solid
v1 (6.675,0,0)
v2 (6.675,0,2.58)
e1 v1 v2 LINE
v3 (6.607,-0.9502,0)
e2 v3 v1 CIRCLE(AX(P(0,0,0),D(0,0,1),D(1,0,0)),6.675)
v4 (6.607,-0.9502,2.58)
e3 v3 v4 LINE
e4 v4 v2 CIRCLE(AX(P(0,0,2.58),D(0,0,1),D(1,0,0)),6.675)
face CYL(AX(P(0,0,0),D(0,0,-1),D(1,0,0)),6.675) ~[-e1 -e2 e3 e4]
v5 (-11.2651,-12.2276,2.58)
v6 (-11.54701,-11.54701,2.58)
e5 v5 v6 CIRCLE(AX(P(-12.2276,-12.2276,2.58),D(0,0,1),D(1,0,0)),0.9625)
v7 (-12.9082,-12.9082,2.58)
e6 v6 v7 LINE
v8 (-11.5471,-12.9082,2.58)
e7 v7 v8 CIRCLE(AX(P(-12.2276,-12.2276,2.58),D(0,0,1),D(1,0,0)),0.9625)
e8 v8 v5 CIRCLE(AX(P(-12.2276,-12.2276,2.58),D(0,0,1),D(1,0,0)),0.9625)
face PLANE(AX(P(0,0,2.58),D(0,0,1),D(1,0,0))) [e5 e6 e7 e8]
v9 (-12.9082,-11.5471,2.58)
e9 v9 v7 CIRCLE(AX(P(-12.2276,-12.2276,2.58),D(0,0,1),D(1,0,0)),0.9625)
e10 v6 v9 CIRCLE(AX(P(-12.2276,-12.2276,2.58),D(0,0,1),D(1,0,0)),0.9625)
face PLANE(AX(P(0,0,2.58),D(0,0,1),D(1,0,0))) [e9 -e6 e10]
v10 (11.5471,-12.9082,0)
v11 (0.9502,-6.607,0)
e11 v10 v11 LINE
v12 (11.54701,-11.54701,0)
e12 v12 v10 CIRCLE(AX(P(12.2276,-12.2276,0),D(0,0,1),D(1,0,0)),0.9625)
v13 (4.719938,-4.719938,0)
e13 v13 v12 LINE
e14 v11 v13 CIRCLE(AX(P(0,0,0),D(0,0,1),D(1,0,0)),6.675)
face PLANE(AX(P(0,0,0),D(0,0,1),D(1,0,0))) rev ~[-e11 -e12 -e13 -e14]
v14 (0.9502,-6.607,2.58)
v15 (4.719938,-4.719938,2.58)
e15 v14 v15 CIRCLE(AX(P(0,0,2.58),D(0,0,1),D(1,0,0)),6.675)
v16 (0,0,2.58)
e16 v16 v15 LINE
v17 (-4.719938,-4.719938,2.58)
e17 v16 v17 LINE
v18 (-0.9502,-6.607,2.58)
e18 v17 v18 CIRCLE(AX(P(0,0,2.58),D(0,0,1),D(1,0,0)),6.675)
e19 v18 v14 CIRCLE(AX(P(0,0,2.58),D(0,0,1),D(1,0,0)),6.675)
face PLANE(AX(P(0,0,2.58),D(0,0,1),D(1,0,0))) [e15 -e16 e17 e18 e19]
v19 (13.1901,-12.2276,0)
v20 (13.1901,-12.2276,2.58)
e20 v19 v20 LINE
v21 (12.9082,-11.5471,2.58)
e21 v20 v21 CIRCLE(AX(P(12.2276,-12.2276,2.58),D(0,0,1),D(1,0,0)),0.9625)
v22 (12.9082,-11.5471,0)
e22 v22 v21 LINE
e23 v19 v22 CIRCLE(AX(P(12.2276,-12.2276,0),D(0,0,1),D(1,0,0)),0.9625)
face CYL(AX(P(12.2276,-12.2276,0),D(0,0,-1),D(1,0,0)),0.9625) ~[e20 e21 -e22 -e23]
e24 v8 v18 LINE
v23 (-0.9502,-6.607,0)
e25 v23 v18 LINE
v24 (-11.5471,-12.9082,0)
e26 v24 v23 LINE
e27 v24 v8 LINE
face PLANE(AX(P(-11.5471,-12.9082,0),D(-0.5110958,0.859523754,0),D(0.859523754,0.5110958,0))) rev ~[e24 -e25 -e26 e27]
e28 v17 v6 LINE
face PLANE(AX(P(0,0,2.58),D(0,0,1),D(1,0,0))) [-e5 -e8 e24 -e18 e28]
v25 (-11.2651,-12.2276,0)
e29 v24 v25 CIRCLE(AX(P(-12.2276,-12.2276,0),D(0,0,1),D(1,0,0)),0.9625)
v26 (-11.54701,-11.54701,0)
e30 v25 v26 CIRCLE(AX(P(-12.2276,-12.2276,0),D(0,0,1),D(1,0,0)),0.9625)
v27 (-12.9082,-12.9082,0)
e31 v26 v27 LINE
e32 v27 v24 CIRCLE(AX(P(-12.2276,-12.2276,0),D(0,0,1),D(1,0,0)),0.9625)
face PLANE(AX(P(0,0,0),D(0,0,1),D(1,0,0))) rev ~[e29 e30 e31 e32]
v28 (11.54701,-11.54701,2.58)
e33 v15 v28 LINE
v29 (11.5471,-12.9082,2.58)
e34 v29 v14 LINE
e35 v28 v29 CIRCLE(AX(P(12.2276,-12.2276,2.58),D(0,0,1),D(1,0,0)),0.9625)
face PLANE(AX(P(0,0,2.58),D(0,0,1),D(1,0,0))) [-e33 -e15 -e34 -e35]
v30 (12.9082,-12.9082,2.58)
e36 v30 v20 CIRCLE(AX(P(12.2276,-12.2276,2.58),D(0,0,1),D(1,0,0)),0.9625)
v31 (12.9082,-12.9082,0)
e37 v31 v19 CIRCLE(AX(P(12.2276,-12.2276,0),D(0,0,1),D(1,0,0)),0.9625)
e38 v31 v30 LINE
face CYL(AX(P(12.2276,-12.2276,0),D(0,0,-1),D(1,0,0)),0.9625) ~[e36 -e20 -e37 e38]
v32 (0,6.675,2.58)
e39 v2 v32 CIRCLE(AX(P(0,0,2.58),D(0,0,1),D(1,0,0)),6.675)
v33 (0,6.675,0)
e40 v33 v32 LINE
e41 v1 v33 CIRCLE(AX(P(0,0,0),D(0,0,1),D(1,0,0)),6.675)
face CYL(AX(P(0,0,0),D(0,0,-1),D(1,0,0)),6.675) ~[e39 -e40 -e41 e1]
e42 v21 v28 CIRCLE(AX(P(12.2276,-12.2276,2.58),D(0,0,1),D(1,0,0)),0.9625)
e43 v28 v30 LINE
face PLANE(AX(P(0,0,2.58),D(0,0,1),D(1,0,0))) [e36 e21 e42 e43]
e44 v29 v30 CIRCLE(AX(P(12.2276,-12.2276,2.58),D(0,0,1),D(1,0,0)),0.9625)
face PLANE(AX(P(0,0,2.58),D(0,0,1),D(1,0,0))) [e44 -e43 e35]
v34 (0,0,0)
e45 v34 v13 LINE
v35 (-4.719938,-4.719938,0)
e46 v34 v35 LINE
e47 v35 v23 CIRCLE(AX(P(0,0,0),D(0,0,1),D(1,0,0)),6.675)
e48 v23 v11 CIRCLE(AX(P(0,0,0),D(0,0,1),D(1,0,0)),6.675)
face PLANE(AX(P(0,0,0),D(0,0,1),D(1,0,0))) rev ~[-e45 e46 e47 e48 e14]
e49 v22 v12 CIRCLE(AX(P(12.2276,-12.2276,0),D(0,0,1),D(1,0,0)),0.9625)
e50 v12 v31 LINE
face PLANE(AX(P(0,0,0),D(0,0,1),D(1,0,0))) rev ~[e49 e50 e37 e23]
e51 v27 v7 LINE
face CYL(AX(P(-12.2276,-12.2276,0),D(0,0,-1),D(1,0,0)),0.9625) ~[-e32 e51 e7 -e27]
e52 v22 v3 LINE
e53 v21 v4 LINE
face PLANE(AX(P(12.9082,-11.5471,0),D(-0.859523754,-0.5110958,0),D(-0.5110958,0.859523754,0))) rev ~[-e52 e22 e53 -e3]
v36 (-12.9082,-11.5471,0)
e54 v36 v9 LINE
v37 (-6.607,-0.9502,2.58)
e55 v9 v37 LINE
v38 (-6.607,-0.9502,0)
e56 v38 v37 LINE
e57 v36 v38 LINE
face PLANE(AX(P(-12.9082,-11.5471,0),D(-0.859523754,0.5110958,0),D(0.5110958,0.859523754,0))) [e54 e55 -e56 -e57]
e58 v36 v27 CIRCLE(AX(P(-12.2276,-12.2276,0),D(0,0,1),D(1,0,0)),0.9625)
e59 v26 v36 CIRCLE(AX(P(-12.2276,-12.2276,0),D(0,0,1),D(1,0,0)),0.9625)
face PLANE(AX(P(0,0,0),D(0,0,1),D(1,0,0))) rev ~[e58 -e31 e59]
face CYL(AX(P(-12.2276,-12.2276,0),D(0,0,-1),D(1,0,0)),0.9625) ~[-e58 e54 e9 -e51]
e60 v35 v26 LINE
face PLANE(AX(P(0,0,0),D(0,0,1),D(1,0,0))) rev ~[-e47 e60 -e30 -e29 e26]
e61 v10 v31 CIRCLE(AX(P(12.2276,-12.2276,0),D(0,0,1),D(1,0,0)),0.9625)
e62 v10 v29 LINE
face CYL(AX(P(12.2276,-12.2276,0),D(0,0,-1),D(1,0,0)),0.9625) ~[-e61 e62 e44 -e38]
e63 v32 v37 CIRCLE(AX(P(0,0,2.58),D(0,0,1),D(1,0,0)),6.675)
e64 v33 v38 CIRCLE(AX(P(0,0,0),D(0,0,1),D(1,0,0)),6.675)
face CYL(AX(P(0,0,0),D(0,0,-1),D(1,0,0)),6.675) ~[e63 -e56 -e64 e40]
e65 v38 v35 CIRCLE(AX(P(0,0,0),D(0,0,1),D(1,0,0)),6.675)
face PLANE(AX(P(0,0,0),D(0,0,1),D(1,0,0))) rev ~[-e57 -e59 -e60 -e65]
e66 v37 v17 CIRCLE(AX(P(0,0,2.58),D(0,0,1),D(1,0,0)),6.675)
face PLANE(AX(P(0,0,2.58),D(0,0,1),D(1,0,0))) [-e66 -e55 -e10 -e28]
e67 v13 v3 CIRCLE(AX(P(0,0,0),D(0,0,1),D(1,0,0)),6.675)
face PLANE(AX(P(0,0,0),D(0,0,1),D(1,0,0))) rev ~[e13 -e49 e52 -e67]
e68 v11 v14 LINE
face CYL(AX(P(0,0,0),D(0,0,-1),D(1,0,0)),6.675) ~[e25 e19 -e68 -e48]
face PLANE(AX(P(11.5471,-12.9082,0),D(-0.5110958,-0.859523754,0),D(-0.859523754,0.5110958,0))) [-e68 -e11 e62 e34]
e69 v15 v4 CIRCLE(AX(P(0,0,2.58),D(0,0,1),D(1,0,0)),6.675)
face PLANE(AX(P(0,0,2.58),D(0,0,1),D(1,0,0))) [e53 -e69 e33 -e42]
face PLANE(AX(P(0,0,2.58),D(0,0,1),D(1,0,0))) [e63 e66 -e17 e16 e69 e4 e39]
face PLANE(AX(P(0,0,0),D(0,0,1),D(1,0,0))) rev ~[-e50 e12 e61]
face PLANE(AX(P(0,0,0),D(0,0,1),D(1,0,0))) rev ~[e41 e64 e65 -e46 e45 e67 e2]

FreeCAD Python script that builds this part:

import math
import FreeCAD as App
import Part
import Sketcher
Q = App.Units.Quantity

doc = App.newDocument("Part")
body = doc.addObject("PartDesign::Body", "Body")

sketch1 = body.newObject("Sketcher::SketchObject", "Sketch")
sketch1.AttachmentSupport = (doc.getObject("XY_Plane"), [""])
sketch1.MapMode = "FlatFace"
sketch1.addGeometry([
    Part.LineSegment(App.Vector(-6.6, -1, 0), App.Vector(-12.9, -11.5, 0)),
    Part.ArcOfCircle(Part.Circle(App.Vector(-12.2, -12.2, 0), App.Vector(0, 0, 1), 1), math.radians(135), math.radians(315)),
    Part.LineSegment(App.Vector(-11.5, -12.9, 0), App.Vector(-1, -6.6, 0)),
    Part.ArcOfCircle(Part.Circle(App.Vector(0, 0, 0), App.Vector(0, 0, 1), 6.7), math.radians(-98.18), math.radians(-81.82)),
    Part.LineSegment(App.Vector(1, -6.6, 0), App.Vector(11.5, -12.9, 0)),
    Part.ArcOfCircle(Part.Circle(App.Vector(12.2, -12.2, 0), App.Vector(0, 0, 1), 1), math.radians(-135), math.radians(45)),
    Part.LineSegment(App.Vector(12.9, -11.5, 0), App.Vector(6.6, -1, 0)),
    Part.ArcOfCircle(Part.Circle(App.Vector(0, 0, 0), App.Vector(0, 0, 1), 6.7), math.radians(-8), math.radians(188)),
], False)
sketch1.addConstraint([
    Sketcher.Constraint("Coincident", 0, 2, 1, 1),
    Sketcher.Constraint("Coincident", 1, 2, 2, 1),
    Sketcher.Constraint("Coincident", 2, 2, 3, 1),
    Sketcher.Constraint("Coincident", 3, 2, 4, 1),
    Sketcher.Constraint("Coincident", 4, 2, 5, 1),
    Sketcher.Constraint("Coincident", 5, 2, 6, 1),
    Sketcher.Constraint("Coincident", 6, 2, 7, 1),
    Sketcher.Constraint("Coincident", 7, 2, 0, 1),
    Sketcher.Constraint("Coincident", 3, 3, -1, 1),
    Sketcher.Constraint("Coincident", 7, 3, -1, 1),
    Sketcher.Constraint("Equal", 1, 5),
    Sketcher.Constraint("Equal", 3, 7),
    Sketcher.Constraint("Symmetric", 1, 3, 5, 3, -2),
    Sketcher.Constraint("Perpendicular", 0, 4),
    Sketcher.Constraint("Perpendicular", 2, 6),
    Sketcher.Constraint("Horizontal", 2, 2, 3, 2),
    Sketcher.Constraint("Horizontal", 1, 2, 4, 2),
    Sketcher.Constraint("Horizontal", 0, 2, 5, 2),
    Sketcher.Constraint("Equal", 0, 2),
    Sketcher.Constraint("Radius", 3, Q("6.675 mm")),
    Sketcher.Constraint("Radius", 1, Q("0.9625 mm")),
    Sketcher.Constraint("DistanceY", 0, 2, 2, 2, Q("4.94 mm")),
    Sketcher.Constraint("DistanceY", 0, 2, -1, 1, Q("11.547 mm")),
    Sketcher.Constraint("DistanceX", 1, 2, -1, 1, Q("11.547 mm")),
    Sketcher.Constraint("DistanceX", 1, 3, -1, 1, Q("12.2276 mm")),
])
pad1 = body.newObject("PartDesign::Pad", "Pad")
pad1.Profile = sketch1
pad1.Length = 2.58

doc.recompute()
